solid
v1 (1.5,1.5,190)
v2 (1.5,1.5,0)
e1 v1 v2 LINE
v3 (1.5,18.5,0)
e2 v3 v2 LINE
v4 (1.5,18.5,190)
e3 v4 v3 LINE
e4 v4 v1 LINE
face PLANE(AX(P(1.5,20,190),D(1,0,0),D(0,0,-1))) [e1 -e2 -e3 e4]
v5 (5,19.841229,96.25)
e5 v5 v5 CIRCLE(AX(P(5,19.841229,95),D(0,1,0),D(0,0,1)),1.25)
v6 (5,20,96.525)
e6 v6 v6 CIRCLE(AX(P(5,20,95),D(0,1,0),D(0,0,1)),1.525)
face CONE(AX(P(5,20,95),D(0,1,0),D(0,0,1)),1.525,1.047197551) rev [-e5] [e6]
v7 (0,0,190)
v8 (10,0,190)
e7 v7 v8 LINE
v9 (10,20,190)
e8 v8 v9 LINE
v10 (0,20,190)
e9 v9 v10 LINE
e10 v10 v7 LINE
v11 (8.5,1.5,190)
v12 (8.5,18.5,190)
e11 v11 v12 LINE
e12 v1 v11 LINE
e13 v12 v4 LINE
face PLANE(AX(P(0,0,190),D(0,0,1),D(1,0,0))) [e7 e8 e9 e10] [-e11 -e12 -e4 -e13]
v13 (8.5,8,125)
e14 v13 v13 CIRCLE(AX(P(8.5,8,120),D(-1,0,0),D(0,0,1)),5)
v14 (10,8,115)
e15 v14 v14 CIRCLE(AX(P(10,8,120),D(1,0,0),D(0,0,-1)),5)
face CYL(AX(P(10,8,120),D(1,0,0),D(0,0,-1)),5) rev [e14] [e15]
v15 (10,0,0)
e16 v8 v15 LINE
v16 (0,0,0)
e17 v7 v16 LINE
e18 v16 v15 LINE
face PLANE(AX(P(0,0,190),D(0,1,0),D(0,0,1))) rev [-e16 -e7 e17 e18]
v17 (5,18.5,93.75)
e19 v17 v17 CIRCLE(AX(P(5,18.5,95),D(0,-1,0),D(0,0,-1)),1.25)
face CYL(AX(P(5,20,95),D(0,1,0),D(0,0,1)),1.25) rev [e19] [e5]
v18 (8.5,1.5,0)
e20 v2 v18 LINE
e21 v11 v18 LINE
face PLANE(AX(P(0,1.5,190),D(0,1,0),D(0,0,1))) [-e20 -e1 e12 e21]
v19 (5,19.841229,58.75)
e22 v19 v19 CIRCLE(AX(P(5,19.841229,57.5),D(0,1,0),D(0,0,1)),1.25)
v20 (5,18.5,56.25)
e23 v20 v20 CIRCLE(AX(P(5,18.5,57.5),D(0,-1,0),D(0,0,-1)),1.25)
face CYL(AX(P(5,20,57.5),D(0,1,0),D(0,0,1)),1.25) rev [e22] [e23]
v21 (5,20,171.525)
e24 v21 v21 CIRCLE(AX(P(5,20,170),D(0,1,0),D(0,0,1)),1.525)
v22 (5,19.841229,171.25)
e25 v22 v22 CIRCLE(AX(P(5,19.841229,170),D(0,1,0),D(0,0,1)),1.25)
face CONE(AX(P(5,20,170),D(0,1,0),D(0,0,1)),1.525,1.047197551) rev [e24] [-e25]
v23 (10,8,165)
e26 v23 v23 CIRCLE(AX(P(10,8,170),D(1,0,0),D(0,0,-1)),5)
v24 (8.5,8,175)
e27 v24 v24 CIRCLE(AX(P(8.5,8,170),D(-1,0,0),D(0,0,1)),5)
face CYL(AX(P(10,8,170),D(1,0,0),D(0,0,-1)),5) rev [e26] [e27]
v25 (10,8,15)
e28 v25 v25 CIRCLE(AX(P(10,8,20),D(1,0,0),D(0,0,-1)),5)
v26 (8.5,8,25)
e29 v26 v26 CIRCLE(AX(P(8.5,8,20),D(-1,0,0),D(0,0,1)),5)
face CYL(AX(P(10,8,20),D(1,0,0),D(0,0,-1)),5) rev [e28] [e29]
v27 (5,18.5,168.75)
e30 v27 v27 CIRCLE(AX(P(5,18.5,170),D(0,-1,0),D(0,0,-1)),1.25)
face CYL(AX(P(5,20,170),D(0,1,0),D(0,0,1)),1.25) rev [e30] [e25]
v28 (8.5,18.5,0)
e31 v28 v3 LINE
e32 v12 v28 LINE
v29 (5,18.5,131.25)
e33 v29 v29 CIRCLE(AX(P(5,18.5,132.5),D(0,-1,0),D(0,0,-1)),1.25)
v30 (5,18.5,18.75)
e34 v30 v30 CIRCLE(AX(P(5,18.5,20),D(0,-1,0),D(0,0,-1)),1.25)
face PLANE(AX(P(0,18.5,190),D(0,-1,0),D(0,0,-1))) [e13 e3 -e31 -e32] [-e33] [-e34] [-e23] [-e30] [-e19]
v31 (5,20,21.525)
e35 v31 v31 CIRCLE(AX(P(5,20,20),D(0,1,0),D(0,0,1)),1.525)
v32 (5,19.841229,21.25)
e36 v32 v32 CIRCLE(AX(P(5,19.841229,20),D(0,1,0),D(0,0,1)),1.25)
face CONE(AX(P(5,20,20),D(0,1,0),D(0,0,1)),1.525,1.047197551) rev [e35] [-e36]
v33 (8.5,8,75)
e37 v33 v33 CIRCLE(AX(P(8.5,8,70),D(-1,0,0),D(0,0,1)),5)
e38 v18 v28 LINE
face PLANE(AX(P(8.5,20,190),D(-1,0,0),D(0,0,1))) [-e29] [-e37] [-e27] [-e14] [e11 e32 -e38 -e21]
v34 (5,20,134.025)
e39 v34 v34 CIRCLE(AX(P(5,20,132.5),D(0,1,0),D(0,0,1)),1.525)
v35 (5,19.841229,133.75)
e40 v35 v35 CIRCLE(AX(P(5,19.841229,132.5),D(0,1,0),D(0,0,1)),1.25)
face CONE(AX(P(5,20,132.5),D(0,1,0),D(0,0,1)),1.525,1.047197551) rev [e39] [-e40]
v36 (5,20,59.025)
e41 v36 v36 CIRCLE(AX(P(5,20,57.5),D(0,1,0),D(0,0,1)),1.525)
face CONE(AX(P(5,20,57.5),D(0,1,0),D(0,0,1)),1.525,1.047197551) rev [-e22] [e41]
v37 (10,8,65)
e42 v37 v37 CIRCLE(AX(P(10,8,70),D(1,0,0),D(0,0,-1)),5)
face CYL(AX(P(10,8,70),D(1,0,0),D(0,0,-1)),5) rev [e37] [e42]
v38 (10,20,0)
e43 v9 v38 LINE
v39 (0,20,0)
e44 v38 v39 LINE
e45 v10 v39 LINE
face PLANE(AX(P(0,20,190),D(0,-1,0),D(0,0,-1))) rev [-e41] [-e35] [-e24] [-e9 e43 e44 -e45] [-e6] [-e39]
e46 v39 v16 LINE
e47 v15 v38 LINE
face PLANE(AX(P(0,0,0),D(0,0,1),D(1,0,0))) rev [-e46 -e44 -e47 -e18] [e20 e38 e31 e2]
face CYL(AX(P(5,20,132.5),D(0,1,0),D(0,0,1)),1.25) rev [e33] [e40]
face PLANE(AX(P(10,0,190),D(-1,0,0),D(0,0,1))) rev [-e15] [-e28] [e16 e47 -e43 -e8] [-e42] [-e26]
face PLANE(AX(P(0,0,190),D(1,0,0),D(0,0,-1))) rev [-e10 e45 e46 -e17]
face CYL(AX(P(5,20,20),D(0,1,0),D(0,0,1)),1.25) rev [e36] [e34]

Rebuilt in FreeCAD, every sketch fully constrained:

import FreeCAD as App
import Part
import Sketcher


def add_polygon(sketch, points):
    """Adds a closed chain of lines whose ends are joined by coincident constraints."""
    first, n = sketch.GeometryCount, len(points)
    for a, b in zip(points, points[1:] + points[:1]):
        sketch.addGeometry(Part.LineSegment(App.Vector(*a, 0), App.Vector(*b, 0)), False)
    for i in range(n):
        sketch.addConstraint(Sketcher.Constraint("Coincident", first + i, 2, first + (i + 1) % n, 1))

doc = App.newDocument("Part")
body = doc.addObject("PartDesign::Body", "Body")

# Sketch on XY plane
sketch1 = doc.addObject("Sketcher::SketchObject", "Sketch")
body.addObject(sketch1)
sketch1.AttachmentSupport = (doc.XY_Plane, [""])
sketch1.MapMode = "FlatFace"
add_polygon(sketch1, [(0, 20), (0, 0), (10, 0), (10, 20)])  # lines 0-3
add_polygon(sketch1, [(8, 2), (2, 2), (2, 18), (8, 18)])  # lines 4-7
sketch1.addConstraint(Sketcher.Constraint("Vertical", 0))
sketch1.addConstraint(Sketcher.Constraint("Horizontal", 1))
sketch1.addConstraint(Sketcher.Constraint("Vertical", 2))
sketch1.addConstraint(Sketcher.Constraint("Horizontal", 3))
sketch1.addConstraint(Sketcher.Constraint("Horizontal", 4))
sketch1.addConstraint(Sketcher.Constraint("Vertical", 5))
sketch1.addConstraint(Sketcher.Constraint("Horizontal", 6))
sketch1.addConstraint(Sketcher.Constraint("Vertical", 7))
sketch1.addConstraint(Sketcher.Constraint("Coincident", 0, 2, -1, 1))
sketch1.addConstraint(Sketcher.Constraint("DistanceX", 1, 1, 1, 2, 10.0))
sketch1.addConstraint(Sketcher.Constraint("DistanceX", 4, 2, 4, 1, 7.0))
sketch1.addConstraint(Sketcher.Constraint("DistanceY", 0, 2, 0, 1, 20.0))
sketch1.addConstraint(Sketcher.Constraint("DistanceY", 5, 1, 5, 2, 17.0))
sketch1.addConstraint(Sketcher.Constraint("DistanceX", -1, 1, 4, 2, 1.5))
sketch1.addConstraint(Sketcher.Constraint("DistanceY", -1, 1, 4, 2, 1.5))
pad1 = doc.addObject("PartDesign::Pad", "Pad")
body.addObject(pad1)
pad1.Profile = sketch1
pad1.Length = 190

# Sketch on XZ plane
sketch2 = doc.addObject("Sketcher::SketchObject", "Sketch001")
body.addObject(sketch2)
sketch2.AttachmentSupport = (doc.XZ_Plane, [""])
sketch2.MapMode = "FlatFace"
sketch2.AttachmentOffset = App.Placement(App.Vector(0, 0, -20), App.Rotation())
sketch2.addGeometry(Part.Circle(App.Vector(5, 20, 0), App.Vector(0, 0, 1), 1.2), False)
sketch2.addGeometry(Part.Circle(App.Vector(5, 57.5, 0), App.Vector(0, 0, 1), 1.2), False)
sketch2.addGeometry(Part.Circle(App.Vector(5, 95, 0), App.Vector(0, 0, 1), 1.2), False)
sketch2.addGeometry(Part.Circle(App.Vector(5, 132.5, 0), App.Vector(0, 0, 1), 1.2), False)
sketch2.addGeometry(Part.Circle(App.Vector(5, 170, 0), App.Vector(0, 0, 1), 1.2), False)
sketch2.addConstraint(Sketcher.Constraint("Equal", 0, 1))
sketch2.addConstraint(Sketcher.Constraint("Equal", 1, 2))
sketch2.addConstraint(Sketcher.Constraint("Equal", 2, 3))
sketch2.addConstraint(Sketcher.Constraint("Equal", 3, 4))
sketch2.addConstraint(Sketcher.Constraint("Vertical", 0, 3, 1, 3))
sketch2.addConstraint(Sketcher.Constraint("Vertical", 1, 3, 2, 3))
sketch2.addConstraint(Sketcher.Constraint("Vertical", 2, 3, 3, 3))
sketch2.addConstraint(Sketcher.Constraint("Vertical", 3, 3, 4, 3))
sketch2.addConstraint(Sketcher.Constraint("Diameter", 0, 2.5))
sketch2.addConstraint(Sketcher.Constraint("DistanceX", -1, 1, 0, 3, 5.0))
sketch2.addConstraint(Sketcher.Constraint("DistanceY", -1, 1, 0, 3, 20.0))
sketch2.addConstraint(Sketcher.Constraint("DistanceY", -1, 1, 2, 3, 95.0))
sketch2.addConstraint(Sketcher.Constraint("DistanceY", -1, 1, 4, 3, 170.0))
sketch2.addConstraint(Sketcher.Constraint("DistanceY", 1, 3, 3, 3, 75.0))
sketch2.addConstraint(Sketcher.Constraint("DistanceY", -1, 1, 1, 3, 57.5))
doc.recompute()
hole = doc.addObject("PartDesign::Hole", "Hole")
body.addObject(hole)
hole.Profile = sketch2
hole.ThreadType = "None"
hole.Diameter = 2.5
hole.DepthType = "Dimension"
hole.Depth = 8.5
hole.DrillPoint = "Angled"
hole.DrillPointAngle = 118
hole.HoleCutType = "Countersink"
hole.HoleCutDiameter = 3.05
hole.HoleCutCountersinkAngle = 120
hole.Reversed = True

# Sketch on YZ plane
sketch3 = doc.addObject("Sketcher::SketchObject", "Sketch002")
body.addObject(sketch3)
sketch3.AttachmentSupport = (doc.YZ_Plane, [""])
sketch3.MapMode = "FlatFace"
sketch3.AttachmentOffset = App.Placement(App.Vector(0, 0, 10), App.Rotation())
sketch3.addGeometry(Part.Circle(App.Vector(8, 170, 0), App.Vector(0, 0, 1), 5), False)
sketch3.addGeometry(Part.Circle(App.Vector(8, 120, 0), App.Vector(0, 0, 1), 5), False)
sketch3.addGeometry(Part.Circle(App.Vector(8, 70, 0), App.Vector(0, 0, 1), 5), False)
sketch3.addGeometry(Part.Circle(App.Vector(8, 20, 0), App.Vector(0, 0, 1), 5), False)
sketch3.addConstraint(Sketcher.Constraint("Equal", 0, 1))
sketch3.addConstraint(Sketcher.Constraint("Equal", 1, 2))
sketch3.addConstraint(Sketcher.Constraint("Equal", 2, 3))
sketch3.addConstraint(Sketcher.Constraint("Vertical", 0, 3, 1, 3))
sketch3.addConstraint(Sketcher.Constraint("Vertical", 1, 3, 2, 3))
sketch3.addConstraint(Sketcher.Constraint("Vertical", 2, 3, 3, 3))
sketch3.addConstraint(Sketcher.Constraint("Diameter", 0, 10.0))
sketch3.addConstraint(Sketcher.Constraint("DistanceX", -1, 1, 0, 3, 8.0))
sketch3.addConstraint(Sketcher.Constraint("DistanceY", -1, 1, 0, 3, 170.0))
sketch3.addConstraint(Sketcher.Constraint("DistanceY", -1, 1, 1, 3, 120.0))
sketch3.addConstraint(Sketcher.Constraint("DistanceY", -1, 1, 2, 3, 70.0))
sketch3.addConstraint(Sketcher.Constraint("DistanceY", -1, 1, 3, 3, 20.0))
doc.recompute()
hole2 = doc.addObject("PartDesign::Hole", "Hole001")
body.addObject(hole2)
hole2.Profile = sketch3
hole2.ThreadType = "None"
hole2.Diameter = 10
hole2.DepthType = "Dimension"
hole2.Depth = 3
hole2.DrillPoint = "Flat"

doc.recompute()
